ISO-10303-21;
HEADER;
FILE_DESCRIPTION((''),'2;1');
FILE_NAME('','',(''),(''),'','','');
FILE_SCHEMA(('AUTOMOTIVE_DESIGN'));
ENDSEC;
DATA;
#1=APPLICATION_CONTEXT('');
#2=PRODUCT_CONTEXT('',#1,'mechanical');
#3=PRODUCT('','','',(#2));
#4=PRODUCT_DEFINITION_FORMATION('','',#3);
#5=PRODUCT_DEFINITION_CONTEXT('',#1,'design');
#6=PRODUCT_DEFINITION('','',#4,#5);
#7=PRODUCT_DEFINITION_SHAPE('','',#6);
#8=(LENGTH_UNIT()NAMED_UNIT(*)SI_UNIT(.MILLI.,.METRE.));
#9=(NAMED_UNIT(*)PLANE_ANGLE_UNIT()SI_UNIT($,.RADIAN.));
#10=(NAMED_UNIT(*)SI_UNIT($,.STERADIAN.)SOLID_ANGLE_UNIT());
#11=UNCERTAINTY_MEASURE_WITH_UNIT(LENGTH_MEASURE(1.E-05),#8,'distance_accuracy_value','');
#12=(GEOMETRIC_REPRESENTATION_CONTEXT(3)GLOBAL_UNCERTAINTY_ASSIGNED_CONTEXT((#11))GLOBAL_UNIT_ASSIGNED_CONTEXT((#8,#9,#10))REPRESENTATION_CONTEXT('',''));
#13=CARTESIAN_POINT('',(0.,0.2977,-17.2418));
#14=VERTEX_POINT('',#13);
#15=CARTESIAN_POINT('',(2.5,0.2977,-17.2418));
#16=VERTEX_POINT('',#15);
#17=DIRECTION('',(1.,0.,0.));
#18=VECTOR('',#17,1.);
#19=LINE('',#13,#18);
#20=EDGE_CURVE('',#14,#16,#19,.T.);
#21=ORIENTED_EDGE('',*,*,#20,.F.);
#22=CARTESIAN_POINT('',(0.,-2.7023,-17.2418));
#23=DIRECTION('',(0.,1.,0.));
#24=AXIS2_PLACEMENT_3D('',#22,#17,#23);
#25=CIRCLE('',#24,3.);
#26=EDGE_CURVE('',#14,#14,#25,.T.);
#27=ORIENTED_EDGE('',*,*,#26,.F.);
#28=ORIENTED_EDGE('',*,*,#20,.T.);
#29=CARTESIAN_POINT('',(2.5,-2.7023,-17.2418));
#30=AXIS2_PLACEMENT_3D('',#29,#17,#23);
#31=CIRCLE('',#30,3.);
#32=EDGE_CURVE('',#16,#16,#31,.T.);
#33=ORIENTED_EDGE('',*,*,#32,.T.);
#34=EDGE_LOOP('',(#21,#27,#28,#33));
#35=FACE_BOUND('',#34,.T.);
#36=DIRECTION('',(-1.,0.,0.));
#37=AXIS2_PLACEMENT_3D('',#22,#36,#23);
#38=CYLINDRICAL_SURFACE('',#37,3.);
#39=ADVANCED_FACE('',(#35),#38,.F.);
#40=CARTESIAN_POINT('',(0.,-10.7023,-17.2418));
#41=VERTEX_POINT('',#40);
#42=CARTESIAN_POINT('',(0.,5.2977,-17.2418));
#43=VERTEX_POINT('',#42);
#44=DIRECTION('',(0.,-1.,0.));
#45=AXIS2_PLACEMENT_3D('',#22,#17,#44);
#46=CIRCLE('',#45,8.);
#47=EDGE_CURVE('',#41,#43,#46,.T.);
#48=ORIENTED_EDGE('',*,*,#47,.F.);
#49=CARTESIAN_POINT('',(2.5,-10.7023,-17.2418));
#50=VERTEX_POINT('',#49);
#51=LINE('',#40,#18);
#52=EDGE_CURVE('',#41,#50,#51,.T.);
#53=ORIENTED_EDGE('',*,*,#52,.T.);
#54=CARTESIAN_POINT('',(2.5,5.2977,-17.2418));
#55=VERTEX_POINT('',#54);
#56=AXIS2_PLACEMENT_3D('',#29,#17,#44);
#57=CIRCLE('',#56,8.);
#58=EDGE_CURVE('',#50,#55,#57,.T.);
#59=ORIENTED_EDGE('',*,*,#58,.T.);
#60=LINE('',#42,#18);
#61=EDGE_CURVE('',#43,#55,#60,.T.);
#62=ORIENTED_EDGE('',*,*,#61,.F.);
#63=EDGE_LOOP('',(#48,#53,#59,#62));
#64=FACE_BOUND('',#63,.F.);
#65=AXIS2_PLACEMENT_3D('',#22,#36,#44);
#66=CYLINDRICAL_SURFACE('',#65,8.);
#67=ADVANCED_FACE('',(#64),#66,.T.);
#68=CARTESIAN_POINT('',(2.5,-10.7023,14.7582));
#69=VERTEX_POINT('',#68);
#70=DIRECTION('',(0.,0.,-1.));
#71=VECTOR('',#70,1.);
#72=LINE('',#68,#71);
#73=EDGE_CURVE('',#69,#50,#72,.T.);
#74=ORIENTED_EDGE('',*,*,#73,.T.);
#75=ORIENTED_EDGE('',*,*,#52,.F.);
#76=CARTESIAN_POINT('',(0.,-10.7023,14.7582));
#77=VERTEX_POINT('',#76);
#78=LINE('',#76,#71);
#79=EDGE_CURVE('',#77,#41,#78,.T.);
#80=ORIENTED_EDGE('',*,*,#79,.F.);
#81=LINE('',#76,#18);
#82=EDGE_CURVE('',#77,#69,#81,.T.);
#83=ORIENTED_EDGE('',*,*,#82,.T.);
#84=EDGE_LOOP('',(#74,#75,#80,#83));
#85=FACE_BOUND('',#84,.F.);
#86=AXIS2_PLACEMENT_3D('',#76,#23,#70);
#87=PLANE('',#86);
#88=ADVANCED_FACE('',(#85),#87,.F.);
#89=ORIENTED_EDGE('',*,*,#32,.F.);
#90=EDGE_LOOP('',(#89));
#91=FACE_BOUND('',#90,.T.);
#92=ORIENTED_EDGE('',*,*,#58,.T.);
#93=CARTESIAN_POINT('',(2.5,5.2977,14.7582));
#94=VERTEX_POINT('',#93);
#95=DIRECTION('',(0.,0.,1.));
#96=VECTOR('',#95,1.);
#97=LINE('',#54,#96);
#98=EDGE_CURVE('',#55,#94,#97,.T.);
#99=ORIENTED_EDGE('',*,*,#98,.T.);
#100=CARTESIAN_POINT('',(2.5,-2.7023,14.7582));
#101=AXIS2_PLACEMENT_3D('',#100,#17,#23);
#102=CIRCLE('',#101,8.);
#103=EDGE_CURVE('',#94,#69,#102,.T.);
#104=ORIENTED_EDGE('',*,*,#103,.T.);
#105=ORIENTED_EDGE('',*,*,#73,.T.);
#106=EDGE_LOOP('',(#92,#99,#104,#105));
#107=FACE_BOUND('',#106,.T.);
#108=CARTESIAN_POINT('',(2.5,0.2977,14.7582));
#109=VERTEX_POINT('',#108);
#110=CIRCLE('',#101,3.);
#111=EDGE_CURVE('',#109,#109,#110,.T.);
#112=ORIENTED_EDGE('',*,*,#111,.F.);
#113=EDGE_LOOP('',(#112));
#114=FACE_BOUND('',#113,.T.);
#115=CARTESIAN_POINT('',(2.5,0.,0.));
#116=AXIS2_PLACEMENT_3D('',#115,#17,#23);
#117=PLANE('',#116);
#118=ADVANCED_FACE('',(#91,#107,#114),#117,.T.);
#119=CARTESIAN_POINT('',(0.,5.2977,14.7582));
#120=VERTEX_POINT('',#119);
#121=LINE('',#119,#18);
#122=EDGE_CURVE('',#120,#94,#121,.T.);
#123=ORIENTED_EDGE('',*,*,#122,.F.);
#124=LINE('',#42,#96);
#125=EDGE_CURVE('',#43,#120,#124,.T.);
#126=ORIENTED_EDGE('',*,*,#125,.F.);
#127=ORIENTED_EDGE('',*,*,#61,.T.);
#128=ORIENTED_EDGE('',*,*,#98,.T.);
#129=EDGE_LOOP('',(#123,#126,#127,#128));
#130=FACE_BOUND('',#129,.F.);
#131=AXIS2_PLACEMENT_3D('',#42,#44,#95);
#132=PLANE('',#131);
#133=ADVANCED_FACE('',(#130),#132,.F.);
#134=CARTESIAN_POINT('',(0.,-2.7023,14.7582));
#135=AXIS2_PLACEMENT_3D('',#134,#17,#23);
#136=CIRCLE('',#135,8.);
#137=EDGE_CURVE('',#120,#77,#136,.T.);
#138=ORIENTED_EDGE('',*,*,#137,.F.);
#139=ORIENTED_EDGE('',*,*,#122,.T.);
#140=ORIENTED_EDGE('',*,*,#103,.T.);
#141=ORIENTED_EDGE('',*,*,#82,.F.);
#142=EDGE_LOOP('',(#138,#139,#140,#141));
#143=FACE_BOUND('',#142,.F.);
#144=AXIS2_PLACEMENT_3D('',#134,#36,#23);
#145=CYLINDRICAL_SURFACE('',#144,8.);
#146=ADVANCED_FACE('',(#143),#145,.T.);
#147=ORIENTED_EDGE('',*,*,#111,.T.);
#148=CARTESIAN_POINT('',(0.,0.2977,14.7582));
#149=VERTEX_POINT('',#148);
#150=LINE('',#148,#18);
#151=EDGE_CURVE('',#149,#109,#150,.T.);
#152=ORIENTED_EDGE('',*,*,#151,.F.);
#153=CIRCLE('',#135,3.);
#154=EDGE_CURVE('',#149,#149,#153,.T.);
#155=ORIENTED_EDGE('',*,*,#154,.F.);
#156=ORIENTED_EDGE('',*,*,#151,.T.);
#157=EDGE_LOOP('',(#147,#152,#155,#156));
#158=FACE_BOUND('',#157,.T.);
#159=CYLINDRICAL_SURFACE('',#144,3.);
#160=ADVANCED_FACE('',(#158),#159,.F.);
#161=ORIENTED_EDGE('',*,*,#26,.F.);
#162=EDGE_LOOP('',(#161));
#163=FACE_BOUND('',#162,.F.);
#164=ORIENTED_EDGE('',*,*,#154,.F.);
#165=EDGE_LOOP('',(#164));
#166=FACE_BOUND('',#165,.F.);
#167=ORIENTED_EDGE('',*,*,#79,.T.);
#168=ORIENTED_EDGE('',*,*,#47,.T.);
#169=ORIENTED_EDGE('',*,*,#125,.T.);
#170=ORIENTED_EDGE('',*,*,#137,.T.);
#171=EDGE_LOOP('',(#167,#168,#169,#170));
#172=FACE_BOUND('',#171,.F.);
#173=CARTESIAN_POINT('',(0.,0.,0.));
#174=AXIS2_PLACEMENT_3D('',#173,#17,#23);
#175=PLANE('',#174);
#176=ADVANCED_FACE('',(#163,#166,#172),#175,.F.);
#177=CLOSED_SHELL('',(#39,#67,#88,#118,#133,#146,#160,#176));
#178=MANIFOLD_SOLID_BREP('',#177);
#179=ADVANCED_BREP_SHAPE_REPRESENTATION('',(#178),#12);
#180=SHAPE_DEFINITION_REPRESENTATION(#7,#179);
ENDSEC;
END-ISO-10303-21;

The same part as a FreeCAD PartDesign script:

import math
import FreeCAD as App
import Part
import Sketcher
Q = App.Units.Quantity

doc = App.newDocument("Part")
body = doc.addObject("PartDesign::Body", "Body")

# Sketch on YZ plane
sketch1 = body.newObject("Sketcher::SketchObject", "Sketch")
sketch1.AttachmentSupport = (doc.getObject("YZ_Plane"), [""])
sketch1.MapMode = "FlatFace"
sketch1.addGeometry(Part.ArcOfCircle(Part.Circle(App.Vector(-2.7, -17.2, 0), App.Vector(0, 0, 1), 8), math.radians(180), math.radians(360)), False)
sketch1.addGeometry(Part.LineSegment(App.Vector(5.3, -17.2, 0), App.Vector(5.3, 14.8, 0)), False)
sketch1.addGeometry(Part.ArcOfCircle(Part.Circle(App.Vector(-2.7, 14.8, 0), App.Vector(0, 0, 1), 8), math.radians(0), math.radians(180)), False)
sketch1.addGeometry(Part.LineSegment(App.Vector(-10.7, 14.8, 0), App.Vector(-10.7, -17.2, 0)), False)
sketch1.addGeometry(Part.Circle(App.Vector(-2.7, -17.2, 0), App.Vector(0, 0, 1), 3), False)
sketch1.addGeometry(Part.Circle(App.Vector(-2.7, 14.8, 0), App.Vector(0, 0, 1), 3), False)
sketch1.addConstraint(Sketcher.Constraint("Tangent", 0, 2, 1, 1))
sketch1.addConstraint(Sketcher.Constraint("Tangent", 1, 2, 2, 1))
sketch1.addConstraint(Sketcher.Constraint("Tangent", 2, 2, 3, 1))
sketch1.addConstraint(Sketcher.Constraint("Tangent", 3, 2, 0, 1))
sketch1.addConstraint(Sketcher.Constraint("Vertical", 1))
sketch1.addConstraint(Sketcher.Constraint("Vertical", 3))
sketch1.addConstraint(Sketcher.Constraint("Coincident", 4, 3, 0, 3))
sketch1.addConstraint(Sketcher.Constraint("Coincident", 5, 3, 2, 3))
sketch1.addConstraint(Sketcher.Constraint("Equal", 4, 5))
sketch1.addConstraint(Sketcher.Constraint("Diameter", 4, Q("6 mm")))
sketch1.addConstraint(Sketcher.Constraint("Radius", 0, Q("8 mm")))
sketch1.addConstraint(Sketcher.Constraint("DistanceY", 1, 1, 1, 2, Q("32 mm")))
sketch1.addConstraint(Sketcher.Constraint("DistanceX", 0, 3, -1, 1, Q("2.7023 mm")))
sketch1.addConstraint(Sketcher.Constraint("DistanceY", 0, 3, -1, 1, Q("17.2418 mm")))
pad1 = body.newObject("PartDesign::Pad", "Pad")
pad1.Profile = sketch1
pad1.Length = 2.5

doc.recompute()
